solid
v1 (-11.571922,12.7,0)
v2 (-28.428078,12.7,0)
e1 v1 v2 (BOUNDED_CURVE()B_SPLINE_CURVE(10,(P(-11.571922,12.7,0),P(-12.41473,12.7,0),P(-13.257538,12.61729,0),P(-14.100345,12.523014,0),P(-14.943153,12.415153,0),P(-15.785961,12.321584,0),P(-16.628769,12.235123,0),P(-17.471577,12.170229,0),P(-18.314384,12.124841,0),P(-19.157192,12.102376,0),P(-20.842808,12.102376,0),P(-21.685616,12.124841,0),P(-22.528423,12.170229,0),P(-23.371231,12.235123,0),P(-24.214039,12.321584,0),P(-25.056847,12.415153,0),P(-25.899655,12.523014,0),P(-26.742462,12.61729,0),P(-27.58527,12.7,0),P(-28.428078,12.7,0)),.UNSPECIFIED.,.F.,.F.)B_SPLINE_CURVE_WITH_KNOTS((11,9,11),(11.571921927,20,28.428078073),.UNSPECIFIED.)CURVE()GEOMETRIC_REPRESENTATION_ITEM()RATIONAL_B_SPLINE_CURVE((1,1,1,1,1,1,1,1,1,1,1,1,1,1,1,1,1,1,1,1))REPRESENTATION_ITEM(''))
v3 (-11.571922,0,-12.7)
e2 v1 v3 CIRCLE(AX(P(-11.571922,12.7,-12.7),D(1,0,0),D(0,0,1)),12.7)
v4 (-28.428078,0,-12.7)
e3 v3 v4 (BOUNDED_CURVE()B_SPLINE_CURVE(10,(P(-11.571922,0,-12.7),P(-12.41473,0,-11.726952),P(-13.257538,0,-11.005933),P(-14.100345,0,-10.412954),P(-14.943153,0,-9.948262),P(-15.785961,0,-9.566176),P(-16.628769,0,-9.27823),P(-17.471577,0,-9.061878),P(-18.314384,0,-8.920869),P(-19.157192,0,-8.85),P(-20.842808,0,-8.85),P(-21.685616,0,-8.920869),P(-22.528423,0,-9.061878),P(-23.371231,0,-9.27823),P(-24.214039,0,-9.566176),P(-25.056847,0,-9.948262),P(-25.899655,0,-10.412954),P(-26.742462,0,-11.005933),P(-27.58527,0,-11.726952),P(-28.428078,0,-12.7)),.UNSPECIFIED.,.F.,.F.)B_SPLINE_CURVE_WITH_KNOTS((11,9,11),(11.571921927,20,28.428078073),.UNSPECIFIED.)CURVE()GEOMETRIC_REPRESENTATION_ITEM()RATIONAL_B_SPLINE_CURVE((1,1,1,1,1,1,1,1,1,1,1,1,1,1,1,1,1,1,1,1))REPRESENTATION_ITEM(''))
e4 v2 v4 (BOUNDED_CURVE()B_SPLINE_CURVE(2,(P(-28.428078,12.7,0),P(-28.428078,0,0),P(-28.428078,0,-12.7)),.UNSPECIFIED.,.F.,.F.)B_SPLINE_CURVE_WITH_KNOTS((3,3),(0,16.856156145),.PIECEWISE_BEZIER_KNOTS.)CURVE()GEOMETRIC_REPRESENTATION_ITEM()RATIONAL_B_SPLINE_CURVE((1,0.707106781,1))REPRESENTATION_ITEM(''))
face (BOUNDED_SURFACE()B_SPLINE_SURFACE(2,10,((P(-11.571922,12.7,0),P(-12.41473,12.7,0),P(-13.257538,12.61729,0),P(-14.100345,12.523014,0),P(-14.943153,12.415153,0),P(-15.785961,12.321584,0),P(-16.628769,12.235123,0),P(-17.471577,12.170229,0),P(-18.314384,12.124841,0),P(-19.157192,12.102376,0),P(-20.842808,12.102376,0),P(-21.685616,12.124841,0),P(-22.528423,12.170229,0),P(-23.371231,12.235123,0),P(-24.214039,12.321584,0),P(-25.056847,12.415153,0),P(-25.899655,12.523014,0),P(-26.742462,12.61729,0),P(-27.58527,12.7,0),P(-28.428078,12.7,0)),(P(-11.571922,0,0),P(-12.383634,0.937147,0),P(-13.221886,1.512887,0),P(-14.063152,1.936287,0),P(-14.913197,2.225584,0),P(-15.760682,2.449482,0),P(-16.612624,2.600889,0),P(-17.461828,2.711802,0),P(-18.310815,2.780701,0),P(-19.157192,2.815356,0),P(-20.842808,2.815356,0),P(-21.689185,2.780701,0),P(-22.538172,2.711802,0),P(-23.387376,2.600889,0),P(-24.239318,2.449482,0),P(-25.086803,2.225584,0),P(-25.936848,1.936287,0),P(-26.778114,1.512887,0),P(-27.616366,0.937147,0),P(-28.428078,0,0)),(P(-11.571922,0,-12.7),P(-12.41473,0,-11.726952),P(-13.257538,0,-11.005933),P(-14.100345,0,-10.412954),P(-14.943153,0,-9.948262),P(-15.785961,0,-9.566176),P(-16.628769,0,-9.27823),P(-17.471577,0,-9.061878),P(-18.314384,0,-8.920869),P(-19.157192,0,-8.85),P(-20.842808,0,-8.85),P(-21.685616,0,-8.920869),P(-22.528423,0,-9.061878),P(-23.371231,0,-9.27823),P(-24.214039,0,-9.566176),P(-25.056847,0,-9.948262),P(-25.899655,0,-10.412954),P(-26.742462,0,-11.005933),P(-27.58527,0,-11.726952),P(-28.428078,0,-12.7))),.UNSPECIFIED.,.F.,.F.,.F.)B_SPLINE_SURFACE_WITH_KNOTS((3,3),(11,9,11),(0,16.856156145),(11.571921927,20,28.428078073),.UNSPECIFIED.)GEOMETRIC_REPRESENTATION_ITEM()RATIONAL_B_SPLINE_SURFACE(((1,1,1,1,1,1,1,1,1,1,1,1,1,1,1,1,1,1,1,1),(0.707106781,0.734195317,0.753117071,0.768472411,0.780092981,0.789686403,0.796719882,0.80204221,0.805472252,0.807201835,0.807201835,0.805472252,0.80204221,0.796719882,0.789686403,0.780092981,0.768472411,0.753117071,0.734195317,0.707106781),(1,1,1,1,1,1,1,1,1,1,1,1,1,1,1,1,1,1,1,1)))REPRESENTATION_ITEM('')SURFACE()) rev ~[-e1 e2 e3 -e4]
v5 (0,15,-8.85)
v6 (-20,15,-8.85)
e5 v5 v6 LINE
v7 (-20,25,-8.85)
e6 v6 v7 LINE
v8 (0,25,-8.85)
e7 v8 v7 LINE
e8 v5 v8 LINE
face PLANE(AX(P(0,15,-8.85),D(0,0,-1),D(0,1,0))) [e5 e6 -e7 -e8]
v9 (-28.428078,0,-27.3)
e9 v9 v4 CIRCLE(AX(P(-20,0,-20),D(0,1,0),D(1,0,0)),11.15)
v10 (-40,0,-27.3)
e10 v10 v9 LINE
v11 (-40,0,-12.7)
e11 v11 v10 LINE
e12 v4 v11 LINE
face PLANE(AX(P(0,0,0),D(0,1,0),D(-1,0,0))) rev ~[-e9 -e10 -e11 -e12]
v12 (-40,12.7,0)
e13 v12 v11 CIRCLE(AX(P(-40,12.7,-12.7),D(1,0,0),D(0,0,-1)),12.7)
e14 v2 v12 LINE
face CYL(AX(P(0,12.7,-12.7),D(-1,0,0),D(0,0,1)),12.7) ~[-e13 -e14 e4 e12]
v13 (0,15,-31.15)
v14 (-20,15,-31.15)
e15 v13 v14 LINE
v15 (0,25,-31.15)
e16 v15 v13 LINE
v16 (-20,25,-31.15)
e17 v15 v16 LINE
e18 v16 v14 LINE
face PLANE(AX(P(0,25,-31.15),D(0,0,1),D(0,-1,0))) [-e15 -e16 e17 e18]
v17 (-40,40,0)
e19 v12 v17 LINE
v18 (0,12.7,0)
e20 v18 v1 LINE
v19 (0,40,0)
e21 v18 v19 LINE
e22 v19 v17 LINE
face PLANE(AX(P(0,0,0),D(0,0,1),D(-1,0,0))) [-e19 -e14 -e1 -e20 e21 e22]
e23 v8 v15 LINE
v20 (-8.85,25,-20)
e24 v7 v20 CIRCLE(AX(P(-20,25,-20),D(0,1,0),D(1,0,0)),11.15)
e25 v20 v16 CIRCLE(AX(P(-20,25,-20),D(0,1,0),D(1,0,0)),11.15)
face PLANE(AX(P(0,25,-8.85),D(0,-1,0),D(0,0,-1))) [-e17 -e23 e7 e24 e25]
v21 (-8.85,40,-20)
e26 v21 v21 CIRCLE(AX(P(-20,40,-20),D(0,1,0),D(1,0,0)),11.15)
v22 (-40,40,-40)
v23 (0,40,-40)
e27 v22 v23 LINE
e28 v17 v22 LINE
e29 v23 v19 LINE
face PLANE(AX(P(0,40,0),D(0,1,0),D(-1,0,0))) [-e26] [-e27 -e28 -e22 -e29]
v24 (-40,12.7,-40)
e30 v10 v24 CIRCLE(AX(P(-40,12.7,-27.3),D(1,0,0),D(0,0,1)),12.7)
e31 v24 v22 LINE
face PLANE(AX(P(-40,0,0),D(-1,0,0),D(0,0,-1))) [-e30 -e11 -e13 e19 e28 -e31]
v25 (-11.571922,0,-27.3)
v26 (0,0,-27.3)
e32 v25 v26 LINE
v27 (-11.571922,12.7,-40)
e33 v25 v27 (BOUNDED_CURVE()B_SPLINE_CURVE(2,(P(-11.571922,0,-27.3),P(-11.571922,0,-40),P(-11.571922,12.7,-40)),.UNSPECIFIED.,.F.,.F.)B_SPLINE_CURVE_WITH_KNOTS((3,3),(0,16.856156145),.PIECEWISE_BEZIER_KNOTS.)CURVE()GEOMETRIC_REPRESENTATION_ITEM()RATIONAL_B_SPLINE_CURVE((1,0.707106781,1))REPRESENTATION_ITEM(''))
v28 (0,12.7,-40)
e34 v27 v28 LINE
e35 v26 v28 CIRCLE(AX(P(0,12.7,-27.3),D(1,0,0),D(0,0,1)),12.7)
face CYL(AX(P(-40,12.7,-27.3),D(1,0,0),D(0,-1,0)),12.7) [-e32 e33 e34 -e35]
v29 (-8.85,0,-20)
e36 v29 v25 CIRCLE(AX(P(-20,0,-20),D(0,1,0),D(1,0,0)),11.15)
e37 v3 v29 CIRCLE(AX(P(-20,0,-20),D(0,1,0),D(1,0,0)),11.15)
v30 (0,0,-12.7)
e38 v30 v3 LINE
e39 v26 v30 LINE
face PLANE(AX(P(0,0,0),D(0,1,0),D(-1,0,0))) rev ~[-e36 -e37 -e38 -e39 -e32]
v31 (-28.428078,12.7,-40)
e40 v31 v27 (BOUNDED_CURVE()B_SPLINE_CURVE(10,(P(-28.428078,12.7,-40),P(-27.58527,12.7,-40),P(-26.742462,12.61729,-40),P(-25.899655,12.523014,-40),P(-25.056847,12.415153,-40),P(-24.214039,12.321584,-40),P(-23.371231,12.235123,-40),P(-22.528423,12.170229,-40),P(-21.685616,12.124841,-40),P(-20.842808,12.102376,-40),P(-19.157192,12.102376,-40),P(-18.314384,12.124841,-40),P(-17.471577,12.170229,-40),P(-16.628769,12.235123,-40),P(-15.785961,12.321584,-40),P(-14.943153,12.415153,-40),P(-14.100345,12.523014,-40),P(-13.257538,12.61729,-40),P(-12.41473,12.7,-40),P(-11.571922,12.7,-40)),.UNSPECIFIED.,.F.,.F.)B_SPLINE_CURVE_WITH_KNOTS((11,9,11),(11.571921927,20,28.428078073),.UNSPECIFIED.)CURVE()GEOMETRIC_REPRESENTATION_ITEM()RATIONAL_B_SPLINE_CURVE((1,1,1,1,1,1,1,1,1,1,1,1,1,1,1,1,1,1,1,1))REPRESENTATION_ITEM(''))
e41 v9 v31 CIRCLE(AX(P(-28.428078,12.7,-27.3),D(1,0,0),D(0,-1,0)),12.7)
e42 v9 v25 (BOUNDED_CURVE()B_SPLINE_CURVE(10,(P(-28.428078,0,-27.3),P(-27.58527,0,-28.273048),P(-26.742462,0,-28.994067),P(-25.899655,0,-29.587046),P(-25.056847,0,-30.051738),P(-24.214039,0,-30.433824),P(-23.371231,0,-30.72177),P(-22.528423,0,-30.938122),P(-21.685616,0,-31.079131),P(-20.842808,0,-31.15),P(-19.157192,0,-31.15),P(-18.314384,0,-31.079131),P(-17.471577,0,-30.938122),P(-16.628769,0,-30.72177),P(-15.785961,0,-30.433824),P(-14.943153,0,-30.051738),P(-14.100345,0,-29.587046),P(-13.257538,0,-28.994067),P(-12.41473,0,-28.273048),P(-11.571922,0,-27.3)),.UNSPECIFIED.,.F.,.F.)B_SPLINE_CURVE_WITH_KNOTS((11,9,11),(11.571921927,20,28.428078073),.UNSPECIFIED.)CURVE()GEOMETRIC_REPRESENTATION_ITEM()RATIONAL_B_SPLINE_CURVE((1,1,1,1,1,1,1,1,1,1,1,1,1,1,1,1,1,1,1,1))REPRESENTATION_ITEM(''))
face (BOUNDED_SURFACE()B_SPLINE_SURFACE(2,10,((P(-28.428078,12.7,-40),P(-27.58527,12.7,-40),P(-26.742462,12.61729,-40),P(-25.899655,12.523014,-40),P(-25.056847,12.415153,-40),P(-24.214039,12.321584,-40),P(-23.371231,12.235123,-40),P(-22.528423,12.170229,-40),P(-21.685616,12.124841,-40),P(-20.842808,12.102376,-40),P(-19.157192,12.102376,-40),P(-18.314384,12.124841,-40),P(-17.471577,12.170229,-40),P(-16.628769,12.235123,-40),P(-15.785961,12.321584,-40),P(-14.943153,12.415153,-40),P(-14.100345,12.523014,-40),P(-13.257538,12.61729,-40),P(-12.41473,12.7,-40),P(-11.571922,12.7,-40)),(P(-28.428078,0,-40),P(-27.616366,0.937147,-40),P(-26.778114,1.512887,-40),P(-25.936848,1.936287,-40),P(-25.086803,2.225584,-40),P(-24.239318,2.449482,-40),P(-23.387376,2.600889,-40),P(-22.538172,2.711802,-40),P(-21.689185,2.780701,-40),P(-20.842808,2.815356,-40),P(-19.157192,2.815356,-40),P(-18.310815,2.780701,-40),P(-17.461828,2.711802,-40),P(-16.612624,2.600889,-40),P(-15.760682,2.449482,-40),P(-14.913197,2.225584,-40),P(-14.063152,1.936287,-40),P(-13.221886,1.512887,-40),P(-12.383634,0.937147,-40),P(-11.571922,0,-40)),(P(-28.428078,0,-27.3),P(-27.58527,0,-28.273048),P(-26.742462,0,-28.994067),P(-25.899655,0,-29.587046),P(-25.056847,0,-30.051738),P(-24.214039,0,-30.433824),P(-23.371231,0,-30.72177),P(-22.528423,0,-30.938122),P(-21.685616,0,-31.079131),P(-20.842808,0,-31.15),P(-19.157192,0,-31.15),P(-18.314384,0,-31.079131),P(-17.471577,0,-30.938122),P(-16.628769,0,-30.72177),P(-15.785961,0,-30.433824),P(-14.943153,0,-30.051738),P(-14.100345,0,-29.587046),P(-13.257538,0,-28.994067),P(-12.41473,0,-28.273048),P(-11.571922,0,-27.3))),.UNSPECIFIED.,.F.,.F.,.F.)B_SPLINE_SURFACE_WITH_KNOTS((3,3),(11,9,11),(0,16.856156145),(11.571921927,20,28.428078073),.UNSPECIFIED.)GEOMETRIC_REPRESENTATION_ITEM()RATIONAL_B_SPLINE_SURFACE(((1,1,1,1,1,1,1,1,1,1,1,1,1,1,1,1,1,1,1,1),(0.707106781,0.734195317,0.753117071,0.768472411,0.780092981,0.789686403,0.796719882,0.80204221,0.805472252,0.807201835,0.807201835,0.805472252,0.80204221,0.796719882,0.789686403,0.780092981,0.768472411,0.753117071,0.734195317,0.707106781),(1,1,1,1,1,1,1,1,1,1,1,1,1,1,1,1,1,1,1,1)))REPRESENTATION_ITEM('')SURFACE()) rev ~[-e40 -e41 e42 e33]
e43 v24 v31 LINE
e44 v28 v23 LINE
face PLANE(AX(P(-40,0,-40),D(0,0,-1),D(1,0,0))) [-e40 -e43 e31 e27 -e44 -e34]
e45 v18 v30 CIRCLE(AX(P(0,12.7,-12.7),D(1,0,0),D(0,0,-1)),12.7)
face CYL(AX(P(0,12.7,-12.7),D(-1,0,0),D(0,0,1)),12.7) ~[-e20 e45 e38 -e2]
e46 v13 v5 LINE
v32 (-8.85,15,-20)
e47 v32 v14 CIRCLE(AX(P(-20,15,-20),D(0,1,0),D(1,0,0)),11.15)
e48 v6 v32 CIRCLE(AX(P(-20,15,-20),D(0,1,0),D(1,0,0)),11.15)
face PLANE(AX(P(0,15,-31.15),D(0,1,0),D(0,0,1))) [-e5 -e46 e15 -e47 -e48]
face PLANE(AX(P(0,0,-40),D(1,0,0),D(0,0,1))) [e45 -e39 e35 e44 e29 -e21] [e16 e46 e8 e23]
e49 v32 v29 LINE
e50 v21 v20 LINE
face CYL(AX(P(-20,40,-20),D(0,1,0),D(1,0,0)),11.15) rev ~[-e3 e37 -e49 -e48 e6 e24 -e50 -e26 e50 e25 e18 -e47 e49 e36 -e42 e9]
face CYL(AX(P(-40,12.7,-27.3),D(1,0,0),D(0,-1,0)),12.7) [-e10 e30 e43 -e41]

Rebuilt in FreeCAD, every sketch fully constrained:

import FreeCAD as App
import Part
import Sketcher
from FreeCAD import Vector
Q = App.Units.Quantity


def edges_at(feature, points):
    """Names of the edges that pass closest to the given points."""
    edges = feature.Shape.Edges
    near = lambda p: min(range(len(edges)), key=lambda i: edges[i].distToShape(Part.Vertex(*p))[0])
    return sorted({f"Edge{near(p) + 1}" for p in points})


def add_polygon(sketch, points):
    """Adds a closed chain of lines whose ends are joined by coincident constraints."""
    first, n = sketch.GeometryCount, len(points)
    for a, b in zip(points, points[1:] + points[:1]):
        sketch.addGeometry(Part.LineSegment(App.Vector(*a, 0), App.Vector(*b, 0)), False)
    for i in range(n):
        sketch.addConstraint(Sketcher.Constraint("Coincident", first + i, 2, first + (i + 1) % n, 1))

doc = App.newDocument("Part")
params = doc.addObject("Spreadsheet::Sheet", "Params")
for row, (alias, value) in enumerate([
    ("sketch1_width", "40 mm"),
    ("pad1_length", "40 mm"),
    ("sketch2_diameter", "22.3 mm"),
    ("pocket1_length", "40 mm"),
    ("sketch3_height", "22.3 mm"),
    ("pocket2_length", "20 mm"),
    ("fillet_radius", "12.7 mm"),
], start=1):
    params.set(f"A{row}", alias)
    params.set(f"B{row}", "=" + value)
    params.setAlias(f"B{row}", alias)

body = doc.addObject("PartDesign::Body", "Body")

# Sketch on XZ plane
sketch1 = doc.addObject("Sketcher::SketchObject", "Sketch")
body.addObject(sketch1)
sketch1.AttachmentSupport = (doc.XZ_Plane, [""])
sketch1.MapMode = "FlatFace"
add_polygon(sketch1, [(-40, 0), (0, 0), (0, -40), (-40, -40)])  # lines 0-3
sketch1.addConstraint([
    Sketcher.Constraint("Horizontal", 0),
    Sketcher.Constraint("Vertical", 1),
    Sketcher.Constraint("Horizontal", 2),
    Sketcher.Constraint("Vertical", 3),
    Sketcher.Constraint("Coincident", 0, 2, -1, 1),
    Sketcher.Constraint("Equal", 2, 1),
    Sketcher.Constraint("DistanceX", 0, 1, 0, 2, Q("40 mm")),
])
sketch1.setExpression("Constraints[10]", "Params.sketch1_width")
pad1 = doc.addObject("PartDesign::Pad", "Pad")
body.addObject(pad1)
pad1.Profile = sketch1
pad1.setExpression("Length", "Params.pad1_length")
pad1.Reversed = True

# Sketch on XZ plane
sketch2 = doc.addObject("Sketcher::SketchObject", "Sketch001")
body.addObject(sketch2)
sketch2.AttachmentSupport = (doc.XZ_Plane, [""])
sketch2.MapMode = "FlatFace"
sketch2.AttachmentOffset = App.Placement(Vector(0, 0, -40), App.Rotation())
sketch2.addGeometry(Part.Circle(Vector(-20, -20, 0), Vector(0, 0, 1), 11.15), False)
sketch2.addConstraint([
    Sketcher.Constraint("Diameter", 0, Q("22.3 mm")),
    Sketcher.Constraint("DistanceX", 0, 3, -1, 1, Q("20 mm")),
    Sketcher.Constraint("DistanceY", 0, 3, -1, 1, Q("20 mm")),
])
sketch2.setExpression("Constraints[0]", "Params.sketch2_diameter")
pocket1 = doc.addObject("PartDesign::Pocket", "Pocket")
body.addObject(pocket1)
pocket1.Profile = sketch2
pocket1.setExpression("Length", "Params.pocket1_length")
pocket1.Reversed = True

# Sketch on YZ plane
sketch3 = doc.addObject("Sketcher::SketchObject", "Sketch002")
body.addObject(sketch3)
sketch3.AttachmentSupport = (doc.YZ_Plane, [""])
sketch3.MapMode = "FlatFace"
add_polygon(sketch3, [(25, -31.15), (25, -8.85), (15, -8.85), (15, -31.15)])  # lines 0-3
sketch3.addConstraint([
    Sketcher.Constraint("Vertical", 0),
    Sketcher.Constraint("Horizontal", 1),
    Sketcher.Constraint("Vertical", 2),
    Sketcher.Constraint("Horizontal", 3),
    Sketcher.Constraint("DistanceY", 0, 1, 0, 2, Q("22.3 mm")),
    Sketcher.Constraint("DistanceX", -1, 1, 0, 2, Q("25 mm")),
    Sketcher.Constraint("DistanceX", -1, 1, 1, 2, Q("15 mm")),
    Sketcher.Constraint("DistanceY", 0, 2, -1, 1, Q("8.85 mm")),
])
sketch3.setExpression("Constraints[8]", "Params.sketch3_height")
pocket2 = doc.addObject("PartDesign::Pocket", "Pocket001")
body.addObject(pocket2)
pocket2.Profile = sketch3
pocket2.setExpression("Length", "Params.pocket2_length")
doc.recompute()

fillet = doc.addObject("PartDesign::Fillet", "Fillet")
body.addObject(fillet)
fillet.Base = (pocket2, edges_at(pocket2, [(-20, 0, 0), (-20, 0, -40)]))
fillet.setExpression("Radius", "Params.fillet_radius")

doc.recompute()
